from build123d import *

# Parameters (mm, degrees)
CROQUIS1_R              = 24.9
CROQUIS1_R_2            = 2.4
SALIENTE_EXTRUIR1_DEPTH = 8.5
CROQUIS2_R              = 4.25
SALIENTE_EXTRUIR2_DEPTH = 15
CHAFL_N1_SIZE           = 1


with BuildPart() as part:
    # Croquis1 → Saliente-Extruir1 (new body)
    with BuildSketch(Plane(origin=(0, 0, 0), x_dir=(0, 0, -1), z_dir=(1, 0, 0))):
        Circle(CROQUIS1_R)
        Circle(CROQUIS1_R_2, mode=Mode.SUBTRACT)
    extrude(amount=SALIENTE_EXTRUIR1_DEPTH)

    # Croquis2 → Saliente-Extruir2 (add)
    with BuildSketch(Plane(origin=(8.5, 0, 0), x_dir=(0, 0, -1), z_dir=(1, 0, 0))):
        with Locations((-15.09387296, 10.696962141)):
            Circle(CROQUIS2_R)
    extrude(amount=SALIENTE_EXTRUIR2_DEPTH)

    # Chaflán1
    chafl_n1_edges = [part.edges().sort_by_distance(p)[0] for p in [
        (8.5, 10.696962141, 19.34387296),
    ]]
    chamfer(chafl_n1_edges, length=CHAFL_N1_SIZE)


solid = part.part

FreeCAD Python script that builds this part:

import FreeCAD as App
import Part
import Sketcher
from FreeCAD import Vector
Q = App.Units.Quantity


def edges_at(feature, points):
    """Names of the edges that pass closest to the given points."""
    edges = feature.Shape.Edges
    near = lambda p: min(range(len(edges)), key=lambda i: edges[i].distToShape(Part.Vertex(*p))[0])
    return sorted({f"Edge{near(p) + 1}" for p in points})

doc = App.newDocument("Part")
params = doc.addObject("Spreadsheet::Sheet", "Params")
for row, (alias, value) in enumerate([
    ("sketch1_diameter", "49.8 mm"),
    ("sketch1_diameter2", "4.8 mm"),
    ("pad1_length", "8.5 mm"),
    ("sketch2_diameter", "8.5 mm"),
    ("pad2_length", "15 mm"),
    ("chamfer_size", "1 mm"),
], start=1):
    params.set(f"A{row}", alias)
    params.set(f"B{row}", "=" + value)
    params.setAlias(f"B{row}", alias)

body = doc.addObject("PartDesign::Body", "Body")

# Sketch on YZ plane
sketch1 = doc.addObject("Sketcher::SketchObject", "Sketch")
body.addObject(sketch1)
sketch1.AttachmentSupport = (doc.YZ_Plane, [""])
sketch1.MapMode = "FlatFace"
sketch1.addGeometry(Part.Circle(Vector(0, 0, 0), Vector(0, 0, 1), 24.9), False)
sketch1.addGeometry(Part.Circle(Vector(0, 0, 0), Vector(0, 0, 1), 2.4), False)
sketch1.addConstraint(Sketcher.Constraint("Coincident", 0, 3, -1, 1))
sketch1.addConstraint(Sketcher.Constraint("Coincident", 1, 3, -1, 1))
sketch1.addConstraint(Sketcher.Constraint("Diameter", 0, Q("49.8 mm")))
sketch1.addConstraint(Sketcher.Constraint("Diameter", 1, Q("4.8 mm")))
sketch1.setExpression("Constraints[2]", "Params.sketch1_diameter")
sketch1.setExpression("Constraints[3]", "Params.sketch1_diameter2")
pad1 = doc.addObject("PartDesign::Pad", "Pad")
body.addObject(pad1)
pad1.Profile = sketch1
pad1.setExpression("Length", "Params.pad1_length")

# Sketch on YZ plane
sketch2 = doc.addObject("Sketcher::SketchObject", "Sketch001")
body.addObject(sketch2)
sketch2.AttachmentSupport = (doc.YZ_Plane, [""])
sketch2.MapMode = "FlatFace"
sketch2.AttachmentOffset = App.Placement(Vector(0, 0, 8.5), App.Rotation())
sketch2.addGeometry(Part.Circle(Vector(10.7, 15.1, 0), Vector(0, 0, 1), 4.2), False)
sketch2.addConstraint(Sketcher.Constraint("Diameter", 0, Q("8.5 mm")))
sketch2.addConstraint(Sketcher.Constraint("DistanceX", -1, 1, 0, 3, Q("10.696962 mm")))
sketch2.addConstraint(Sketcher.Constraint("DistanceY", -1, 1, 0, 3, Q("15.093873 mm")))
sketch2.setExpression("Constraints[0]", "Params.sketch2_diameter")
pad2 = doc.addObject("PartDesign::Pad", "Pad001")
body.addObject(pad2)
pad2.Profile = sketch2
pad2.setExpression("Length", "Params.pad2_length")
doc.recompute()

chamfer = doc.addObject("PartDesign::Chamfer", "Chamfer")
body.addObject(chamfer)
chamfer.Base = (pad2, edges_at(pad2, [(8.5, 10.697, 19.344)]))
chamfer.setExpression("Size", "Params.chamfer_size")

doc.recompute()
